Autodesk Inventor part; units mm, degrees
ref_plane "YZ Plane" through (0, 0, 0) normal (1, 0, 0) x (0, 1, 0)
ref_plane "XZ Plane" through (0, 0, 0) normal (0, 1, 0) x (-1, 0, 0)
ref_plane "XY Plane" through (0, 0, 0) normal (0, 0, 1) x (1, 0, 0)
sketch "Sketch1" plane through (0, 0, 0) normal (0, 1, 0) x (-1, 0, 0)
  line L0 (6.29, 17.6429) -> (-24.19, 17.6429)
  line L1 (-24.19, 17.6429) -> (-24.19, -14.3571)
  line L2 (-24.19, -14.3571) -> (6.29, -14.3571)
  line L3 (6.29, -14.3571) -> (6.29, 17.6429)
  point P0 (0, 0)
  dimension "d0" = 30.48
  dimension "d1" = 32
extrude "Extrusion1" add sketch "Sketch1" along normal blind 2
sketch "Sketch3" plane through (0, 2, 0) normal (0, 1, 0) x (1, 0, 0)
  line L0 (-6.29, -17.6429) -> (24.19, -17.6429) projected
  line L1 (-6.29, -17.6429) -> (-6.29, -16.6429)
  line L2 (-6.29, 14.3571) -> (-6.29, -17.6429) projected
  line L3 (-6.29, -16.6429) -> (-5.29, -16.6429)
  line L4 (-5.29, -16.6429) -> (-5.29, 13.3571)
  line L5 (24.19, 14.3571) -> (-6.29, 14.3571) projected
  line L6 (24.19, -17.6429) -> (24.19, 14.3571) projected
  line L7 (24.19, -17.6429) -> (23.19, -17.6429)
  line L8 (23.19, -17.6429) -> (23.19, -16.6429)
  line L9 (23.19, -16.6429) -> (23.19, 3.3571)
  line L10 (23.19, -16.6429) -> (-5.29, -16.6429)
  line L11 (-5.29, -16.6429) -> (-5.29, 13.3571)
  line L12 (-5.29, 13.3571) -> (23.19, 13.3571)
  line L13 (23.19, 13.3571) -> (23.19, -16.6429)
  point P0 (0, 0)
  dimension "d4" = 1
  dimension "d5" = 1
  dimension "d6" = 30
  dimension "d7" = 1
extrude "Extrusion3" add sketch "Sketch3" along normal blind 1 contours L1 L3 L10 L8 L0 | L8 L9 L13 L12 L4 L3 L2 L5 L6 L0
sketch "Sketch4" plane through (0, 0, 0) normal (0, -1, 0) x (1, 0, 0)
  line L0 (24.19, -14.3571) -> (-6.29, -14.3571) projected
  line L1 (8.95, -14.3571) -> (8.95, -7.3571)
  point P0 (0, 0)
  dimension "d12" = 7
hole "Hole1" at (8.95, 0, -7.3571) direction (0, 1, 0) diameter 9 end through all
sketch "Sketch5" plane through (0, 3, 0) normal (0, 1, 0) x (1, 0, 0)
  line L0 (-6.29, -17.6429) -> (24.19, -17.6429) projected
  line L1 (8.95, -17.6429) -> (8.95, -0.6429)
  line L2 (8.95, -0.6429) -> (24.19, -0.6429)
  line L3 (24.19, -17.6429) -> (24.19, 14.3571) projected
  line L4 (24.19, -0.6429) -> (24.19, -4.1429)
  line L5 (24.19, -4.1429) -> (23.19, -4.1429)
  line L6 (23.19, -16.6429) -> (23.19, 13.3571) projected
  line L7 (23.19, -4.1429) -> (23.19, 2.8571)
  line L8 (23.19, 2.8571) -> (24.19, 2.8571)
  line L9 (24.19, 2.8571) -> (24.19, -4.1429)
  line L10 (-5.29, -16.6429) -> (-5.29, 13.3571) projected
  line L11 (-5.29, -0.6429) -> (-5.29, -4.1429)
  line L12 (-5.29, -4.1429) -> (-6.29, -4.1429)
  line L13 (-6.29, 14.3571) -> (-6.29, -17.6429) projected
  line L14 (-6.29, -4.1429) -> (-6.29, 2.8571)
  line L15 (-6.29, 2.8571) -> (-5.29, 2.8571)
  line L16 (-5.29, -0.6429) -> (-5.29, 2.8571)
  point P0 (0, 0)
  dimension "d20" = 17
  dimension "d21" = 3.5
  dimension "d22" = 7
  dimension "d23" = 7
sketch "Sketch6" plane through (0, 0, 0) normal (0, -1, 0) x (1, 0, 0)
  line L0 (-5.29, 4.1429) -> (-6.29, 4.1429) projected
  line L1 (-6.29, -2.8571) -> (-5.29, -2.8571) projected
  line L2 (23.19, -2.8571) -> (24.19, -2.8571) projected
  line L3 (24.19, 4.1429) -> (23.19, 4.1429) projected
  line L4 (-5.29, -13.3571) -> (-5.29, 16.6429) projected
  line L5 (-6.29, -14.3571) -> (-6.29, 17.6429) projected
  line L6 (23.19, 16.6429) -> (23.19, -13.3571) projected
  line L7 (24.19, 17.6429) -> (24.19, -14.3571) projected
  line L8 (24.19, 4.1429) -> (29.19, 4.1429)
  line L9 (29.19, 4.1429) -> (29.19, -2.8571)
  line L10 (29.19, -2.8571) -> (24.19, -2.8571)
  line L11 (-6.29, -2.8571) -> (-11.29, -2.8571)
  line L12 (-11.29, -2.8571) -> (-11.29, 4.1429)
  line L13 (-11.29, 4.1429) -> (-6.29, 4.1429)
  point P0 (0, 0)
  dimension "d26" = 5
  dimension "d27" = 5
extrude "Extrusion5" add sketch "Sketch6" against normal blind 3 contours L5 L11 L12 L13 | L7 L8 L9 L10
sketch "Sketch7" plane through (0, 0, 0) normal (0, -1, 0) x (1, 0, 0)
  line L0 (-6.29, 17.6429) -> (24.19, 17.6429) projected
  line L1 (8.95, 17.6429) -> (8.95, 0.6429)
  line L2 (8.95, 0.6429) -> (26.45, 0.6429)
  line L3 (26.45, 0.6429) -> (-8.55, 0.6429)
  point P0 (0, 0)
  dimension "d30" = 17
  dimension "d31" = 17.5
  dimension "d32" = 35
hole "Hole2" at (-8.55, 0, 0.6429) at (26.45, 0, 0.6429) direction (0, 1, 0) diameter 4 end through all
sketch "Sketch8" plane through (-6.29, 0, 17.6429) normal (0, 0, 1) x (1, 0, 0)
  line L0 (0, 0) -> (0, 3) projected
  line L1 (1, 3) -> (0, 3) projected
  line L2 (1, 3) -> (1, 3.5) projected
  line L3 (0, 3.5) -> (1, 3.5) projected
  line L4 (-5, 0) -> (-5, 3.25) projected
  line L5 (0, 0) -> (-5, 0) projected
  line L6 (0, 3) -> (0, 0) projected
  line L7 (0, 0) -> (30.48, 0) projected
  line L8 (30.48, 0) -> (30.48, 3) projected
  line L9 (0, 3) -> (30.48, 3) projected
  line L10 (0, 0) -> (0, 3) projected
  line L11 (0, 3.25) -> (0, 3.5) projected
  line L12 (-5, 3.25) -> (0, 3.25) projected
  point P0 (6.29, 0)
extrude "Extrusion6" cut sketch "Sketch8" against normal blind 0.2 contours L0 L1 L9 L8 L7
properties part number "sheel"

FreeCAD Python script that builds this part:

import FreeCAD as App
import Part
import Sketcher


def add_polygon(sketch, points):
    """Adds a closed chain of lines whose ends are joined by coincident constraints."""
    first, n = sketch.GeometryCount, len(points)
    for a, b in zip(points, points[1:] + points[:1]):
        sketch.addGeometry(Part.LineSegment(App.Vector(*a, 0), App.Vector(*b, 0)), False)
    for i in range(n):
        sketch.addConstraint(Sketcher.Constraint("Coincident", first + i, 2, first + (i + 1) % n, 1))

doc = App.newDocument("Part")
body = doc.addObject("PartDesign::Body", "Body")

sketch1 = body.newObject("Sketcher::SketchObject", "Sketch")
sketch1.AttachmentSupport = (doc.getObject("XZ_Plane"), [""])
sketch1.MapMode = "FlatFace"
add_polygon(sketch1, [(-6.29, -14.3571), (-6.29, 17.6429), (24.19, 17.6429), (24.19, -14.3571)])
sketch1.addConstraint([
    Sketcher.Constraint("Vertical", 0),
    Sketcher.Constraint("Horizontal", 1),
    Sketcher.Constraint("Vertical", 2),
    Sketcher.Constraint("Horizontal", 3),
    Sketcher.Constraint("DistanceY", 0, 1, 0, 2, 32.0),
    Sketcher.Constraint("DistanceX", 1, 1, 1, 2, 30.48),
    Sketcher.Constraint("DistanceX", 0, 2, -1, 1, 6.29),
    Sketcher.Constraint("DistanceY", -1, 1, 0, 2, 17.643),
])
pad1 = body.newObject("PartDesign::Pad", "Pad")
pad1.Profile = sketch1
pad1.Length = 2
pad1.Reversed = True

sketch2 = body.newObject("Sketcher::SketchObject", "Sketch001")
sketch2.AttachmentSupport = (doc.getObject("XZ_Plane"), [""])
sketch2.MapMode = "FlatFace"
sketch2.AttachmentOffset = App.Placement(App.Vector(0, 0, -2), App.Rotation())
add_polygon(sketch2, [(-6.29, 17.6429), (24.19, 17.6429), (24.19, -14.3571), (-6.29, -14.3571)])
add_polygon(sketch2, [(23.19, 16.6429), (-5.29, 16.6429), (-5.29, -13.3571), (23.19, -13.3571)])
sketch2.addConstraint([
    Sketcher.Constraint("Horizontal", 0),
    Sketcher.Constraint("Vertical", 1),
    Sketcher.Constraint("Horizontal", 2),
    Sketcher.Constraint("Vertical", 3),
    Sketcher.Constraint("Horizontal", 4),
    Sketcher.Constraint("Vertical", 5),
    Sketcher.Constraint("Horizontal", 6),
    Sketcher.Constraint("Vertical", 7),
    Sketcher.Constraint("DistanceY", 5, 2, 5, 1, 30.0),
    Sketcher.Constraint("DistanceX", 3, 2, 4, 2, 1.0),
    Sketcher.Constraint("DistanceY", 4, 2, 3, 2, 1.0),
    Sketcher.Constraint("DistanceY", 2, 2, 5, 2, 1.0),
    Sketcher.Constraint("DistanceX", 6, 2, 1, 2, 1.0),
    Sketcher.Constraint("DistanceX", 0, 1, 0, 2, 30.48),
    Sketcher.Constraint("DistanceX", -1, 1, 0, 2, 24.19),
    Sketcher.Constraint("DistanceY", -1, 1, 0, 2, 17.643),
])
pad2 = body.newObject("PartDesign::Pad", "Pad001")
pad2.Profile = sketch2
pad2.Length = 1
pad2.Reversed = True

sketch3 = body.newObject("Sketcher::SketchObject", "Sketch002")
sketch3.AttachmentSupport = (doc.getObject("XZ_Plane"), [""])
sketch3.MapMode = "FlatFace"
sketch3.addGeometry(Part.Circle(App.Vector(8.95, -7.3571, 0), App.Vector(0, 0, 1), 4.5), False)
sketch3.addConstraint([
    Sketcher.Constraint("Diameter", 0, 9.0),
    Sketcher.Constraint("DistanceX", -1, 1, 0, 3, 8.95),
    Sketcher.Constraint("DistanceY", 0, 3, -1, 1, 7.357),
])
doc.recompute()
hole = body.newObject("PartDesign::Hole", "Hole")
hole.Profile = sketch3
hole.ThreadType = "None"
hole.Diameter = 9
hole.DepthType = "ThroughAll"

sketch4 = body.newObject("Sketcher::SketchObject", "Sketch003")
sketch4.AttachmentSupport = (doc.getObject("XZ_Plane"), [""])
sketch4.MapMode = "FlatFace"
add_polygon(sketch4, [(-6.29, -2.8571), (-6.29, 4.1429), (-11.29, 4.1429), (-11.29, -2.8571)])
add_polygon(sketch4, [(24.19, 4.1429), (24.19, -2.8571), (29.19, -2.8571), (29.19, 4.1429)])
sketch4.addConstraint([
    Sketcher.Constraint("Vertical", 0),
    Sketcher.Constraint("Horizontal", 1),
    Sketcher.Constraint("Vertical", 2),
    Sketcher.Constraint("Horizontal", 3),
    Sketcher.Constraint("Vertical", 4),
    Sketcher.Constraint("Horizontal", 5),
    Sketcher.Constraint("Vertical", 6),
    Sketcher.Constraint("Horizontal", 7),
    Sketcher.Constraint("Horizontal", 3, 2, 4, 2),
    Sketcher.Constraint("Horizontal", 1, 2, 6, 2),
    Sketcher.Constraint("Equal", 3, 5),
    Sketcher.Constraint("DistanceX", 1, 2, 1, 1, 5.0),
    Sketcher.Constraint("DistanceY", 0, 1, 0, 2, 7.0),
    Sketcher.Constraint("DistanceX", 0, 2, -1, 1, 6.29),
    Sketcher.Constraint("DistanceX", -1, 1, 4, 2, 24.19),
    Sketcher.Constraint("DistanceY", -1, 1, 0, 2, 4.143),
])
pad3 = body.newObject("PartDesign::Pad", "Pad002")
pad3.Profile = sketch4
pad3.Length = 3
pad3.Reversed = True

sketch5 = body.newObject("Sketcher::SketchObject", "Sketch004")
sketch5.AttachmentSupport = (doc.getObject("XZ_Plane"), [""])
sketch5.MapMode = "FlatFace"
sketch5.addGeometry([
    Part.Circle(App.Vector(-8.55, 0.6429, 0), App.Vector(0, 0, 1), 2),
    Part.Circle(App.Vector(26.45, 0.6429, 0), App.Vector(0, 0, 1), 2),
], False)
sketch5.addConstraint([
    Sketcher.Constraint("Equal", 0, 1),
    Sketcher.Constraint("Horizontal", 0, 3, 1, 3),
    Sketcher.Constraint("Diameter", 0, 4.0),
    Sketcher.Constraint("DistanceX", 0, 3, 1, 3, 35.0),
    Sketcher.Constraint("DistanceX", 0, 3, -1, 1, 8.55),
    Sketcher.Constraint("DistanceY", -1, 1, 0, 3, 0.643),
])
doc.recompute()
hole2 = body.newObject("PartDesign::Hole", "Hole001")
hole2.Profile = sketch5
hole2.ThreadType = "None"
hole2.Diameter = 4
hole2.DepthType = "ThroughAll"

sketch6 = body.newObject("Sketcher::SketchObject", "Sketch005")
sketch6.AttachmentSupport = (doc.getObject("XY_Plane"), [""])
sketch6.MapMode = "FlatFace"
sketch6.AttachmentOffset = App.Placement(App.Vector(0, 0, 17.6429), App.Rotation())
add_polygon(sketch6, [(-6.29, 3), (-6.29, 0), (24.19, 0), (24.19, 3)])
sketch6.addConstraint([
    Sketcher.Constraint("Vertical", 0),
    Sketcher.Constraint("Horizontal", 1),
    Sketcher.Constraint("Vertical", 2),
    Sketcher.Constraint("Horizontal", 3),
    Sketcher.Constraint("PointOnObject", 0, 2, -1),
    Sketcher.Constraint("DistanceY", 0, 2, 0, 1, 3.0),
    Sketcher.Constraint("DistanceX", 1, 1, 1, 2, 30.48),
    Sketcher.Constraint("DistanceX", 0, 2, -1, 1, 6.29),
])
pocket1 = body.newObject("PartDesign::Pocket", "Pocket")
pocket1.Profile = sketch6
pocket1.Length = 0.2

doc.recompute()
